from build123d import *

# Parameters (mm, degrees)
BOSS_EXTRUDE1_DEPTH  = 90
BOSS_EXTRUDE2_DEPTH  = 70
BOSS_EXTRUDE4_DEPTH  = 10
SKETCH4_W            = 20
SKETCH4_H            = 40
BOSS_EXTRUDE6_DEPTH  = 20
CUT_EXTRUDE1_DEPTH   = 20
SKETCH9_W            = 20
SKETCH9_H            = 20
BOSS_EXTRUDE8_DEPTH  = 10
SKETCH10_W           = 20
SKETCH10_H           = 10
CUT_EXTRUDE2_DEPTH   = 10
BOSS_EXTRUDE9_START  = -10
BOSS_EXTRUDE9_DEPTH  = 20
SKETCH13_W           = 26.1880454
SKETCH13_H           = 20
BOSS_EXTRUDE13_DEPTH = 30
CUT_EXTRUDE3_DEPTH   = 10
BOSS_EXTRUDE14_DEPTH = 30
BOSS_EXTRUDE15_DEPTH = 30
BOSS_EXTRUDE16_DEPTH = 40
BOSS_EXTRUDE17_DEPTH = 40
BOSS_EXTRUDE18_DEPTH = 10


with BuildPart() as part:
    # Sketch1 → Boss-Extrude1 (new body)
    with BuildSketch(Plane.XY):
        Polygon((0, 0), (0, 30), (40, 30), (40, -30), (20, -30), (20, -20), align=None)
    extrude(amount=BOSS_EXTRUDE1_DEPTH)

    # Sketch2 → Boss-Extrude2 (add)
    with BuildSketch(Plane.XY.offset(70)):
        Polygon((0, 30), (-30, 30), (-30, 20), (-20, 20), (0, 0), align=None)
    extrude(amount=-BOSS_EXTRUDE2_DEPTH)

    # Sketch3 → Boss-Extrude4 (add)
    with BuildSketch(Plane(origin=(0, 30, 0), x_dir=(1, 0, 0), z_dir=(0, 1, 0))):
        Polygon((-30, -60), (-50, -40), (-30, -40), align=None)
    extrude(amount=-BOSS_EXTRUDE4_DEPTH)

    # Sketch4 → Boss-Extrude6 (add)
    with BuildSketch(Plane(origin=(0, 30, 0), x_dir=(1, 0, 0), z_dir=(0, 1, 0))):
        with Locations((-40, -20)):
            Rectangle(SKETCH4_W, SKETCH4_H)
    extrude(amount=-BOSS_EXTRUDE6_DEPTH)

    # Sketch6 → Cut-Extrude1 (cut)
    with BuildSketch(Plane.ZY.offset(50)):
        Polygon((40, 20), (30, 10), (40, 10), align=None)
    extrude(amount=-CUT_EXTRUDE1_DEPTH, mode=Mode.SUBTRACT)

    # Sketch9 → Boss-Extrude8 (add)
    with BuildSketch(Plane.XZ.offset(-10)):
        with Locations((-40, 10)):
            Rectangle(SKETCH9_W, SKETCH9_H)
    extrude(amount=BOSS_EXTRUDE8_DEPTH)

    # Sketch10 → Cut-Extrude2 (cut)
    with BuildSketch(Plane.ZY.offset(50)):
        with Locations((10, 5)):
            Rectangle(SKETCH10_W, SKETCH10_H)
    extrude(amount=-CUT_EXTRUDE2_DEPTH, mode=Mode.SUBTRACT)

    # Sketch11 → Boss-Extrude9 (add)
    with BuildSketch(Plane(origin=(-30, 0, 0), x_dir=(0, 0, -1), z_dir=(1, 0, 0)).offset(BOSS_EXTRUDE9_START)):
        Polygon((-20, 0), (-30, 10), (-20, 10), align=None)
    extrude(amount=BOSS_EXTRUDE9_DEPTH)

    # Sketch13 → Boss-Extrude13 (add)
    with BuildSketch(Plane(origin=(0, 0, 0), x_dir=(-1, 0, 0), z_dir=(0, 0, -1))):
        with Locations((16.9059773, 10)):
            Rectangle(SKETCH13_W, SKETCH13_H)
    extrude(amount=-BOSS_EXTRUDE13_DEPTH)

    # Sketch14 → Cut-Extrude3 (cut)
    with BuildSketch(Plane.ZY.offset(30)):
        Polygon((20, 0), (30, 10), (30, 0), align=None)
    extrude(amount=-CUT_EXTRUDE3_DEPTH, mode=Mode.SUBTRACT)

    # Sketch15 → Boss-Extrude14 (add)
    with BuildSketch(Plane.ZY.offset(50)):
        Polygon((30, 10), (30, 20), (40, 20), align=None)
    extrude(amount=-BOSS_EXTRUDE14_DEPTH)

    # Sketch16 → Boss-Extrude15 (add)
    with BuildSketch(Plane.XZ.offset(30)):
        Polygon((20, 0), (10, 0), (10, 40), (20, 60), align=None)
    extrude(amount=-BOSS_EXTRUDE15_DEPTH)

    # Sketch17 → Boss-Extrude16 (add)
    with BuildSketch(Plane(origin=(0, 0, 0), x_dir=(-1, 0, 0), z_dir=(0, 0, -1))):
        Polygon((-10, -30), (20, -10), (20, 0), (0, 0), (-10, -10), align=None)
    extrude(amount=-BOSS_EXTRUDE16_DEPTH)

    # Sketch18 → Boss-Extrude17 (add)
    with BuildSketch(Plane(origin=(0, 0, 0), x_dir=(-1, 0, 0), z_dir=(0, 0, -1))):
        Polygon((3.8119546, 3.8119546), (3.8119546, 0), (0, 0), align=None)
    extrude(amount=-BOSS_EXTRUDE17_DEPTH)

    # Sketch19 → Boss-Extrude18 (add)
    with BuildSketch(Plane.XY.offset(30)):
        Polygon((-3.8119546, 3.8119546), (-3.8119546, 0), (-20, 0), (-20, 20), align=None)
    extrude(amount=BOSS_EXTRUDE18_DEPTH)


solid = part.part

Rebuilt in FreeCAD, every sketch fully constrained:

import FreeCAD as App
import Part
import Sketcher
from FreeCAD import Vector
Q = App.Units.Quantity

doc = App.newDocument("Part")
body = doc.addObject("PartDesign::Body", "Body")

# Sketch on XY plane
sketch1 = doc.addObject("Sketcher::SketchObject", "Sketch")
body.addObject(sketch1)
sketch1.AttachmentSupport = (doc.XY_Plane, [""])
sketch1.MapMode = "FlatFace"
sketch1.addGeometry(Part.LineSegment(Vector(0, 30, 0), Vector(0, 0, 0)), False)
sketch1.addGeometry(Part.LineSegment(Vector(0, 0, 0), Vector(20, -20, 0)), False)
sketch1.addGeometry(Part.LineSegment(Vector(20, -20, 0), Vector(20, -30, 0)), False)
sketch1.addGeometry(Part.LineSegment(Vector(20, -30, 0), Vector(40, -30, 0)), False)
sketch1.addGeometry(Part.LineSegment(Vector(40, -30, 0), Vector(40, 30, 0)), False)
sketch1.addGeometry(Part.LineSegment(Vector(40, 30, 0), Vector(0, 30, 0)), False)
sketch1.addConstraint(Sketcher.Constraint("Coincident", 0, 2, 1, 1))
sketch1.addConstraint(Sketcher.Constraint("Coincident", 1, 2, 2, 1))
sketch1.addConstraint(Sketcher.Constraint("Coincident", 2, 2, 3, 1))
sketch1.addConstraint(Sketcher.Constraint("Coincident", 3, 2, 4, 1))
sketch1.addConstraint(Sketcher.Constraint("Coincident", 4, 2, 5, 1))
sketch1.addConstraint(Sketcher.Constraint("Coincident", 5, 2, 0, 1))
sketch1.addConstraint(Sketcher.Constraint("Vertical", 0))
sketch1.addConstraint(Sketcher.Constraint("Vertical", 2))
sketch1.addConstraint(Sketcher.Constraint("Horizontal", 3))
sketch1.addConstraint(Sketcher.Constraint("Vertical", 4))
sketch1.addConstraint(Sketcher.Constraint("Horizontal", 5))
sketch1.addConstraint(Sketcher.Constraint("Coincident", 0, 2, -1, 1))
sketch1.addConstraint(Sketcher.Constraint("DistanceX", 3, 1, 3, 2, Q("20 mm")))
sketch1.addConstraint(Sketcher.Constraint("DistanceX", 5, 2, 5, 1, Q("40 mm")))
sketch1.addConstraint(Sketcher.Constraint("DistanceY", 0, 2, 0, 1, Q("30 mm")))
sketch1.addConstraint(Sketcher.Constraint("DistanceY", 2, 2, 2, 1, Q("10 mm")))
sketch1.addConstraint(Sketcher.Constraint("DistanceY", 4, 1, 4, 2, Q("60 mm")))
pad1 = doc.addObject("PartDesign::Pad", "Pad")
body.addObject(pad1)
pad1.Profile = sketch1
pad1.Length = 90

# Sketch on XY plane
sketch2 = doc.addObject("Sketcher::SketchObject", "Sketch001")
body.addObject(sketch2)
sketch2.AttachmentSupport = (doc.XY_Plane, [""])
sketch2.MapMode = "FlatFace"
sketch2.AttachmentOffset = App.Placement(Vector(0, 0, 70), App.Rotation())
sketch2.addGeometry(Part.LineSegment(Vector(0, 30, 0), Vector(-30, 30, 0)), False)
sketch2.addGeometry(Part.LineSegment(Vector(-30, 30, 0), Vector(-30, 20, 0)), False)
sketch2.addGeometry(Part.LineSegment(Vector(-30, 20, 0), Vector(-20, 20, 0)), False)
sketch2.addGeometry(Part.LineSegment(Vector(-20, 20, 0), Vector(0, 0, 0)), False)
sketch2.addGeometry(Part.LineSegment(Vector(0, 0, 0), Vector(0, 30, 0)), False)
sketch2.addConstraint(Sketcher.Constraint("Coincident", 0, 2, 1, 1))
sketch2.addConstraint(Sketcher.Constraint("Coincident", 1, 2, 2, 1))
sketch2.addConstraint(Sketcher.Constraint("Coincident", 2, 2, 3, 1))
sketch2.addConstraint(Sketcher.Constraint("Coincident", 3, 2, 4, 1))
sketch2.addConstraint(Sketcher.Constraint("Coincident", 4, 2, 0, 1))
sketch2.addConstraint(Sketcher.Constraint("Horizontal", 0))
sketch2.addConstraint(Sketcher.Constraint("Vertical", 1))
sketch2.addConstraint(Sketcher.Constraint("Horizontal", 2))
sketch2.addConstraint(Sketcher.Constraint("Vertical", 4))
sketch2.addConstraint(Sketcher.Constraint("Coincident", 3, 2, -1, 1))
sketch2.addConstraint(Sketcher.Constraint("Equal", 2, 1))
sketch2.addConstraint(Sketcher.Constraint("Equal", 0, 4))
sketch2.addConstraint(Sketcher.Constraint("DistanceX", 0, 2, 0, 1, Q("30 mm")))
sketch2.addConstraint(Sketcher.Constraint("DistanceX", 2, 1, 2, 2, Q("10 mm")))
pad2 = doc.addObject("PartDesign::Pad", "Pad001")
body.addObject(pad2)
pad2.Profile = sketch2
pad2.Length = 70
pad2.Reversed = True

# Sketch on XZ plane
sketch3 = doc.addObject("Sketcher::SketchObject", "Sketch002")
body.addObject(sketch3)
sketch3.AttachmentSupport = (doc.XZ_Plane, [""])
sketch3.MapMode = "FlatFace"
sketch3.AttachmentOffset = App.Placement(Vector(0, 0, -30), App.Rotation())
sketch3.addGeometry(Part.LineSegment(Vector(-50, 40, 0), Vector(-30, 60, 0)), False)
sketch3.addGeometry(Part.LineSegment(Vector(-30, 60, 0), Vector(-30, 40, 0)), False)
sketch3.addGeometry(Part.LineSegment(Vector(-30, 40, 0), Vector(-50, 40, 0)), False)
sketch3.addConstraint(Sketcher.Constraint("Coincident", 0, 2, 1, 1))
sketch3.addConstraint(Sketcher.Constraint("Coincident", 1, 2, 2, 1))
sketch3.addConstraint(Sketcher.Constraint("Coincident", 2, 2, 0, 1))
sketch3.addConstraint(Sketcher.Constraint("Vertical", 1))
sketch3.addConstraint(Sketcher.Constraint("Horizontal", 2))
sketch3.addConstraint(Sketcher.Constraint("Equal", 2, 1))
sketch3.addConstraint(Sketcher.Constraint("DistanceX", 2, 2, 2, 1, Q("20 mm")))
sketch3.addConstraint(Sketcher.Constraint("DistanceX", 0, 2, -1, 1, Q("30 mm")))
sketch3.addConstraint(Sketcher.Constraint("DistanceY", -1, 1, 0, 2, Q("60 mm")))
pad3 = doc.addObject("PartDesign::Pad", "Pad002")
body.addObject(pad3)
pad3.Profile = sketch3
pad3.Length = 10

# Sketch on XZ plane
sketch4 = doc.addObject("Sketcher::SketchObject", "Sketch003")
body.addObject(sketch4)
sketch4.AttachmentSupport = (doc.XZ_Plane, [""])
sketch4.MapMode = "FlatFace"
sketch4.AttachmentOffset = App.Placement(Vector(0, 0, -30), App.Rotation())
sketch4.addGeometry(Part.LineSegment(Vector(-50, 0, 0), Vector(-50, 40, 0)), False)
sketch4.addGeometry(Part.LineSegment(Vector(-50, 40, 0), Vector(-30, 40, 0)), False)
sketch4.addGeometry(Part.LineSegment(Vector(-30, 40, 0), Vector(-30, 0, 0)), False)
sketch4.addGeometry(Part.LineSegment(Vector(-30, 0, 0), Vector(-50, 0, 0)), False)
sketch4.addConstraint(Sketcher.Constraint("Coincident", 0, 2, 1, 1))
sketch4.addConstraint(Sketcher.Constraint("Coincident", 1, 2, 2, 1))
sketch4.addConstraint(Sketcher.Constraint("Coincident", 2, 2, 3, 1))
sketch4.addConstraint(Sketcher.Constraint("Coincident", 3, 2, 0, 1))
sketch4.addConstraint(Sketcher.Constraint("Vertical", 0))
sketch4.addConstraint(Sketcher.Constraint("Horizontal", 1))
sketch4.addConstraint(Sketcher.Constraint("Vertical", 2))
sketch4.addConstraint(Sketcher.Constraint("Horizontal", 3))
sketch4.addConstraint(Sketcher.Constraint("PointOnObject", 2, 2, -1))
sketch4.addConstraint(Sketcher.Constraint("DistanceX", 1, 1, 1, 2, Q("20 mm")))
sketch4.addConstraint(Sketcher.Constraint("DistanceY", 0, 1, 0, 2, Q("40 mm")))
sketch4.addConstraint(Sketcher.Constraint("DistanceX", 0, 2, -1, 1, Q("50 mm")))
pad4 = doc.addObject("PartDesign::Pad", "Pad003")
body.addObject(pad4)
pad4.Profile = sketch4
pad4.Length = 20

# Sketch on YZ plane
sketch5 = doc.addObject("Sketcher::SketchObject", "Sketch004")
body.addObject(sketch5)
sketch5.AttachmentSupport = (doc.YZ_Plane, [""])
sketch5.MapMode = "FlatFace"
sketch5.AttachmentOffset = App.Placement(Vector(0, 0, -50), App.Rotation())
sketch5.addGeometry(Part.LineSegment(Vector(20, 40, 0), Vector(10, 30, 0)), False)
sketch5.addGeometry(Part.LineSegment(Vector(10, 30, 0), Vector(10, 40, 0)), False)
sketch5.addGeometry(Part.LineSegment(Vector(10, 40, 0), Vector(20, 40, 0)), False)
sketch5.addConstraint(Sketcher.Constraint("Coincident", 0, 2, 1, 1))
sketch5.addConstraint(Sketcher.Constraint("Coincident", 1, 2, 2, 1))
sketch5.addConstraint(Sketcher.Constraint("Coincident", 2, 2, 0, 1))
sketch5.addConstraint(Sketcher.Constraint("Vertical", 1))
sketch5.addConstraint(Sketcher.Constraint("Horizontal", 2))
sketch5.addConstraint(Sketcher.Constraint("Equal", 2, 1))
sketch5.addConstraint(Sketcher.Constraint("DistanceX", 2, 1, 2, 2, Q("10 mm")))
sketch5.addConstraint(Sketcher.Constraint("DistanceX", -1, 1, 0, 2, Q("10 mm")))
sketch5.addConstraint(Sketcher.Constraint("DistanceY", -1, 1, 0, 2, Q("30 mm")))
pocket1 = doc.addObject("PartDesign::Pocket", "Pocket")
body.addObject(pocket1)
pocket1.Profile = sketch5
pocket1.Length = 20
pocket1.Reversed = True

# Sketch on XZ plane
sketch6 = doc.addObject("Sketcher::SketchObject", "Sketch005")
body.addObject(sketch6)
sketch6.AttachmentSupport = (doc.XZ_Plane, [""])
sketch6.MapMode = "FlatFace"
sketch6.AttachmentOffset = App.Placement(Vector(0, 0, -10), App.Rotation())
sketch6.addGeometry(Part.LineSegment(Vector(-50, 20, 0), Vector(-50, 0, 0)), False)
sketch6.addGeometry(Part.LineSegment(Vector(-50, 0, 0), Vector(-30, 0, 0)), False)
sketch6.addGeometry(Part.LineSegment(Vector(-30, 0, 0), Vector(-30, 20, 0)), False)
sketch6.addGeometry(Part.LineSegment(Vector(-30, 20, 0), Vector(-50, 20, 0)), False)
sketch6.addConstraint(Sketcher.Constraint("Coincident", 0, 2, 1, 1))
sketch6.addConstraint(Sketcher.Constraint("Coincident", 1, 2, 2, 1))
sketch6.addConstraint(Sketcher.Constraint("Coincident", 2, 2, 3, 1))
sketch6.addConstraint(Sketcher.Constraint("Coincident", 3, 2, 0, 1))
sketch6.addConstraint(Sketcher.Constraint("Vertical", 0))
sketch6.addConstraint(Sketcher.Constraint("Horizontal", 1))
sketch6.addConstraint(Sketcher.Constraint("Vertical", 2))
sketch6.addConstraint(Sketcher.Constraint("Horizontal", 3))
sketch6.addConstraint(Sketcher.Constraint("PointOnObject", 0, 2, -1))
sketch6.addConstraint(Sketcher.Constraint("Equal", 3, 0))
sketch6.addConstraint(Sketcher.Constraint("DistanceX", 1, 1, 1, 2, Q("20 mm")))
sketch6.addConstraint(Sketcher.Constraint("DistanceX", 0, 2, -1, 1, Q("50 mm")))
pad5 = doc.addObject("PartDesign::Pad", "Pad004")
body.addObject(pad5)
pad5.Profile = sketch6
pad5.Length = 10

# Sketch on YZ plane
sketch7 = doc.addObject("Sketcher::SketchObject", "Sketch006")
body.addObject(sketch7)
sketch7.AttachmentSupport = (doc.YZ_Plane, [""])
sketch7.MapMode = "FlatFace"
sketch7.AttachmentOffset = App.Placement(Vector(0, 0, -50), App.Rotation())
sketch7.addGeometry(Part.LineSegment(Vector(10, 0, 0), Vector(0, 0, 0)), False)
sketch7.addGeometry(Part.LineSegment(Vector(0, 0, 0), Vector(0, 20, 0)), False)
sketch7.addGeometry(Part.LineSegment(Vector(0, 20, 0), Vector(10, 20, 0)), False)
sketch7.addGeometry(Part.LineSegment(Vector(10, 20, 0), Vector(10, 0, 0)), False)
sketch7.addConstraint(Sketcher.Constraint("Coincident", 0, 2, 1, 1))
sketch7.addConstraint(Sketcher.Constraint("Coincident", 1, 2, 2, 1))
sketch7.addConstraint(Sketcher.Constraint("Coincident", 2, 2, 3, 1))
sketch7.addConstraint(Sketcher.Constraint("Coincident", 3, 2, 0, 1))
sketch7.addConstraint(Sketcher.Constraint("Horizontal", 0))
sketch7.addConstraint(Sketcher.Constraint("Vertical", 1))
sketch7.addConstraint(Sketcher.Constraint("Horizontal", 2))
sketch7.addConstraint(Sketcher.Constraint("Vertical", 3))
sketch7.addConstraint(Sketcher.Constraint("Coincident", 0, 2, -1, 1))
sketch7.addConstraint(Sketcher.Constraint("DistanceX", 0, 2, 0, 1, Q("10 mm")))
sketch7.addConstraint(Sketcher.Constraint("DistanceY", 1, 1, 1, 2, Q("20 mm")))
pocket2 = doc.addObject("PartDesign::Pocket", "Pocket001")
body.addObject(pocket2)
pocket2.Profile = sketch7
pocket2.Length = 10
pocket2.Reversed = True

# Sketch on YZ plane
sketch8 = doc.addObject("Sketcher::SketchObject", "Sketch007")
body.addObject(sketch8)
sketch8.AttachmentSupport = (doc.YZ_Plane, [""])
sketch8.MapMode = "FlatFace"
sketch8.AttachmentOffset = App.Placement(Vector(0, 0, -40), App.Rotation())
sketch8.addGeometry(Part.LineSegment(Vector(10, 30, 0), Vector(0, 20, 0)), False)
sketch8.addGeometry(Part.LineSegment(Vector(0, 20, 0), Vector(10, 20, 0)), False)
sketch8.addGeometry(Part.LineSegment(Vector(10, 20, 0), Vector(10, 30, 0)), False)
sketch8.addConstraint(Sketcher.Constraint("Coincident", 0, 2, 1, 1))
sketch8.addConstraint(Sketcher.Constraint("Coincident", 1, 2, 2, 1))
sketch8.addConstraint(Sketcher.Constraint("Coincident", 2, 2, 0, 1))
sketch8.addConstraint(Sketcher.Constraint("Horizontal", 1))
sketch8.addConstraint(Sketcher.Constraint("Vertical", 2))
sketch8.addConstraint(Sketcher.Constraint("PointOnObject", 0, 2, -2))
sketch8.addConstraint(Sketcher.Constraint("Equal", 1, 2))
sketch8.addConstraint(Sketcher.Constraint("DistanceX", 1, 1, 1, 2, Q("10 mm")))
sketch8.addConstraint(Sketcher.Constraint("DistanceY", -1, 1, 0, 2, Q("20 mm")))
pad6 = doc.addObject("PartDesign::Pad", "Pad005")
body.addObject(pad6)
pad6.Profile = sketch8
pad6.Length = 20

# Sketch on XY plane
sketch9 = doc.addObject("Sketcher::SketchObject", "Sketch008")
body.addObject(sketch9)
sketch9.AttachmentSupport = (doc.XY_Plane, [""])
sketch9.MapMode = "FlatFace"
sketch9.addGeometry(Part.LineSegment(Vector(-4, 20, 0), Vector(-4, 0, 0)), False)
sketch9.addGeometry(Part.LineSegment(Vector(-4, 0, 0), Vector(-30, 0, 0)), False)
sketch9.addGeometry(Part.LineSegment(Vector(-30, 0, 0), Vector(-30, 20, 0)), False)
sketch9.addGeometry(Part.LineSegment(Vector(-30, 20, 0), Vector(-4, 20, 0)), False)
sketch9.addConstraint(Sketcher.Constraint("Coincident", 0, 2, 1, 1))
sketch9.addConstraint(Sketcher.Constraint("Coincident", 1, 2, 2, 1))
sketch9.addConstraint(Sketcher.Constraint("Coincident", 2, 2, 3, 1))
sketch9.addConstraint(Sketcher.Constraint("Coincident", 3, 2, 0, 1))
sketch9.addConstraint(Sketcher.Constraint("Vertical", 0))
sketch9.addConstraint(Sketcher.Constraint("Horizontal", 1))
sketch9.addConstraint(Sketcher.Constraint("Vertical", 2))
sketch9.addConstraint(Sketcher.Constraint("Horizontal", 3))
sketch9.addConstraint(Sketcher.Constraint("PointOnObject", 0, 2, -1))
sketch9.addConstraint(Sketcher.Constraint("DistanceY", 0, 2, 0, 1, Q("20 mm")))
sketch9.addConstraint(Sketcher.Constraint("DistanceX", 1, 2, -1, 1, Q("30 mm")))
sketch9.addConstraint(Sketcher.Constraint("DistanceX", 1, 2, 1, 1, Q("26.188045 mm")))
pad7 = doc.addObject("PartDesign::Pad", "Pad006")
body.addObject(pad7)
pad7.Profile = sketch9
pad7.Length = 30

# Sketch on YZ plane
sketch10 = doc.addObject("Sketcher::SketchObject", "Sketch009")
body.addObject(sketch10)
sketch10.AttachmentSupport = (doc.YZ_Plane, [""])
sketch10.MapMode = "FlatFace"
sketch10.AttachmentOffset = App.Placement(Vector(0, 0, -30), App.Rotation())
sketch10.addGeometry(Part.LineSegment(Vector(10, 30, 0), Vector(0, 20, 0)), False)
sketch10.addGeometry(Part.LineSegment(Vector(0, 20, 0), Vector(0, 30, 0)), False)
sketch10.addGeometry(Part.LineSegment(Vector(0, 30, 0), Vector(10, 30, 0)), False)
sketch10.addConstraint(Sketcher.Constraint("Coincident", 0, 2, 1, 1))
sketch10.addConstraint(Sketcher.Constraint("Coincident", 1, 2, 2, 1))
sketch10.addConstraint(Sketcher.Constraint("Coincident", 2, 2, 0, 1))
sketch10.addConstraint(Sketcher.Constraint("Vertical", 1))
sketch10.addConstraint(Sketcher.Constraint("Horizontal", 2))
sketch10.addConstraint(Sketcher.Constraint("PointOnObject", 0, 2, -2))
sketch10.addConstraint(Sketcher.Constraint("Equal", 2, 1))
sketch10.addConstraint(Sketcher.Constraint("DistanceX", 2, 1, 2, 2, Q("10 mm")))
sketch10.addConstraint(Sketcher.Constraint("DistanceY", -1, 1, 0, 2, Q("20 mm")))
pocket3 = doc.addObject("PartDesign::Pocket", "Pocket002")
body.addObject(pocket3)
pocket3.Profile = sketch10
pocket3.Length = 10
pocket3.Reversed = True

# Sketch on YZ plane
sketch11 = doc.addObject("Sketcher::SketchObject", "Sketch010")
body.addObject(sketch11)
sketch11.AttachmentSupport = (doc.YZ_Plane, [""])
sketch11.MapMode = "FlatFace"
sketch11.AttachmentOffset = App.Placement(Vector(0, 0, -50), App.Rotation())
sketch11.addGeometry(Part.LineSegment(Vector(20, 30, 0), Vector(10, 30, 0)), False)
sketch11.addGeometry(Part.LineSegment(Vector(10, 30, 0), Vector(20, 40, 0)), False)
sketch11.addGeometry(Part.LineSegment(Vector(20, 40, 0), Vector(20, 30, 0)), False)
sketch11.addConstraint(Sketcher.Constraint("Coincident", 0, 2, 1, 1))
sketch11.addConstraint(Sketcher.Constraint("Coincident", 1, 2, 2, 1))
sketch11.addConstraint(Sketcher.Constraint("Coincident", 2, 2, 0, 1))
sketch11.addConstraint(Sketcher.Constraint("Horizontal", 0))
sketch11.addConstraint(Sketcher.Constraint("Vertical", 2))
sketch11.addConstraint(Sketcher.Constraint("Equal", 0, 2))
sketch11.addConstraint(Sketcher.Constraint("DistanceX", 0, 2, 0, 1, Q("10 mm")))
sketch11.addConstraint(Sketcher.Constraint("DistanceX", -1, 1, 0, 2, Q("10 mm")))
sketch11.addConstraint(Sketcher.Constraint("DistanceY", -1, 1, 0, 2, Q("30 mm")))
pad8 = doc.addObject("PartDesign::Pad", "Pad007")
body.addObject(pad8)
pad8.Profile = sketch11
pad8.Length = 30

# Sketch on XZ plane
sketch12 = doc.addObject("Sketcher::SketchObject", "Sketch011")
body.addObject(sketch12)
sketch12.AttachmentSupport = (doc.XZ_Plane, [""])
sketch12.MapMode = "FlatFace"
sketch12.AttachmentOffset = App.Placement(Vector(0, 0, 30), App.Rotation())
sketch12.addGeometry(Part.LineSegment(Vector(10, 0, 0), Vector(20, 0, 0)), False)
sketch12.addGeometry(Part.LineSegment(Vector(20, 0, 0), Vector(20, 60, 0)), False)
sketch12.addGeometry(Part.LineSegment(Vector(20, 60, 0), Vector(10, 40, 0)), False)
sketch12.addGeometry(Part.LineSegment(Vector(10, 40, 0), Vector(10, 0, 0)), False)
sketch12.addConstraint(Sketcher.Constraint("Coincident", 0, 2, 1, 1))
sketch12.addConstraint(Sketcher.Constraint("Coincident", 1, 2, 2, 1))
sketch12.addConstraint(Sketcher.Constraint("Coincident", 2, 2, 3, 1))
sketch12.addConstraint(Sketcher.Constraint("Coincident", 3, 2, 0, 1))
sketch12.addConstraint(Sketcher.Constraint("Horizontal", 0))
sketch12.addConstraint(Sketcher.Constraint("Vertical", 1))
sketch12.addConstraint(Sketcher.Constraint("Vertical", 3))
sketch12.addConstraint(Sketcher.Constraint("PointOnObject", 0, 2, -1))
sketch12.addConstraint(Sketcher.Constraint("DistanceX", 0, 1, 0, 2, Q("10 mm")))
sketch12.addConstraint(Sketcher.Constraint("DistanceY", 1, 1, 1, 2, Q("60 mm")))
sketch12.addConstraint(Sketcher.Constraint("DistanceY", 3, 2, 3, 1, Q("40 mm")))
sketch12.addConstraint(Sketcher.Constraint("DistanceX", -1, 1, 0, 2, Q("20 mm")))
pad9 = doc.addObject("PartDesign::Pad", "Pad008")
body.addObject(pad9)
pad9.Profile = sketch12
pad9.Length = 30
pad9.Reversed = True

# Sketch on XY plane
sketch13 = doc.addObject("Sketcher::SketchObject", "Sketch012")
body.addObject(sketch13)
sketch13.AttachmentSupport = (doc.XY_Plane, [""])
sketch13.MapMode = "FlatFace"
sketch13.addGeometry(Part.LineSegment(Vector(10, -30, 0), Vector(-20, -10, 0)), False)
sketch13.addGeometry(Part.LineSegment(Vector(-20, -10, 0), Vector(-20, 0, 0)), False)
sketch13.addGeometry(Part.LineSegment(Vector(-20, 0, 0), Vector(0, 0, 0)), False)
sketch13.addGeometry(Part.LineSegment(Vector(0, 0, 0), Vector(10, -10, 0)), False)
sketch13.addGeometry(Part.LineSegment(Vector(10, -10, 0), Vector(10, -30, 0)), False)
sketch13.addConstraint(Sketcher.Constraint("Coincident", 0, 2, 1, 1))
sketch13.addConstraint(Sketcher.Constraint("Coincident", 1, 2, 2, 1))
sketch13.addConstraint(Sketcher.Constraint("Coincident", 2, 2, 3, 1))
sketch13.addConstraint(Sketcher.Constraint("Coincident", 3, 2, 4, 1))
sketch13.addConstraint(Sketcher.Constraint("Coincident", 4, 2, 0, 1))
sketch13.addConstraint(Sketcher.Constraint("Vertical", 1))
sketch13.addConstraint(Sketcher.Constraint("Horizontal", 2))
sketch13.addConstraint(Sketcher.Constraint("Vertical", 4))
sketch13.addConstraint(Sketcher.Constraint("Coincident", 2, 2, -1, 1))
sketch13.addConstraint(Sketcher.Constraint("Horizontal", 0, 2, 3, 2))
sketch13.addConstraint(Sketcher.Constraint("Equal", 2, 4))
sketch13.addConstraint(Sketcher.Constraint("DistanceX", 2, 1, 2, 2, Q("20 mm")))
sketch13.addConstraint(Sketcher.Constraint("DistanceY", 1, 1, 1, 2, Q("10 mm")))
sketch13.addConstraint(Sketcher.Constraint("Angle", 3, Q("-45 deg")))
pad10 = doc.addObject("PartDesign::Pad", "Pad009")
body.addObject(pad10)
pad10.Profile = sketch13
pad10.Length = 40

# Sketch on XY plane
sketch14 = doc.addObject("Sketcher::SketchObject", "Sketch013")
body.addObject(sketch14)
sketch14.AttachmentSupport = (doc.XY_Plane, [""])
sketch14.MapMode = "FlatFace"
sketch14.addGeometry(Part.LineSegment(Vector(-3.8, 0, 0), Vector(-3.8, 3.8, 0)), False)
sketch14.addGeometry(Part.LineSegment(Vector(-3.8, 3.8, 0), Vector(0, 0, 0)), False)
sketch14.addGeometry(Part.LineSegment(Vector(0, 0, 0), Vector(-3.8, 0, 0)), False)
sketch14.addConstraint(Sketcher.Constraint("Coincident", 0, 2, 1, 1))
sketch14.addConstraint(Sketcher.Constraint("Coincident", 1, 2, 2, 1))
sketch14.addConstraint(Sketcher.Constraint("Coincident", 2, 2, 0, 1))
sketch14.addConstraint(Sketcher.Constraint("Vertical", 0))
sketch14.addConstraint(Sketcher.Constraint("Horizontal", 2))
sketch14.addConstraint(Sketcher.Constraint("Coincident", 1, 2, -1, 1))
sketch14.addConstraint(Sketcher.Constraint("Equal", 2, 0))
sketch14.addConstraint(Sketcher.Constraint("DistanceX", 2, 2, 2, 1, Q("3.811955 mm")))
pad11 = doc.addObject("PartDesign::Pad", "Pad010")
body.addObject(pad11)
pad11.Profile = sketch14
pad11.Length = 40

# Sketch on XY plane
sketch15 = doc.addObject("Sketcher::SketchObject", "Sketch014")
body.addObject(sketch15)
sketch15.AttachmentSupport = (doc.XY_Plane, [""])
sketch15.MapMode = "FlatFace"
sketch15.AttachmentOffset = App.Placement(Vector(0, 0, 30), App.Rotation())
sketch15.addGeometry(Part.LineSegment(Vector(-3.8, 0, 0), Vector(-3.8, 3.8, 0)), False)
sketch15.addGeometry(Part.LineSegment(Vector(-3.8, 3.8, 0), Vector(-20, 20, 0)), False)
sketch15.addGeometry(Part.LineSegment(Vector(-20, 20, 0), Vector(-20, 0, 0)), False)
sketch15.addGeometry(Part.LineSegment(Vector(-20, 0, 0), Vector(-3.8, 0, 0)), False)
sketch15.addConstraint(Sketcher.Constraint("Coincident", 0, 2, 1, 1))
sketch15.addConstraint(Sketcher.Constraint("Coincident", 1, 2, 2, 1))
sketch15.addConstraint(Sketcher.Constraint("Coincident", 2, 2, 3, 1))
sketch15.addConstraint(Sketcher.Constraint("Coincident", 3, 2, 0, 1))
sketch15.addConstraint(Sketcher.Constraint("Vertical", 0))
sketch15.addConstraint(Sketcher.Constraint("Vertical", 2))
sketch15.addConstraint(Sketcher.Constraint("Horizontal", 3))
sketch15.addConstraint(Sketcher.Constraint("PointOnObject", 2, 2, -1))
sketch15.addConstraint(Sketcher.Constraint("DistanceY", 2, 2, 2, 1, Q("20 mm")))
sketch15.addConstraint(Sketcher.Constraint("Angle", 1, Q("135 deg")))
sketch15.addConstraint(Sketcher.Constraint("DistanceX", 1, 2, -1, 1, Q("20 mm")))
sketch15.addConstraint(Sketcher.Constraint("DistanceX", 3, 1, 3, 2, Q("16.188045 mm")))
pad12 = doc.addObject("PartDesign::Pad", "Pad011")
body.addObject(pad12)
pad12.Profile = sketch15
pad12.Length = 10

doc.recompute()
